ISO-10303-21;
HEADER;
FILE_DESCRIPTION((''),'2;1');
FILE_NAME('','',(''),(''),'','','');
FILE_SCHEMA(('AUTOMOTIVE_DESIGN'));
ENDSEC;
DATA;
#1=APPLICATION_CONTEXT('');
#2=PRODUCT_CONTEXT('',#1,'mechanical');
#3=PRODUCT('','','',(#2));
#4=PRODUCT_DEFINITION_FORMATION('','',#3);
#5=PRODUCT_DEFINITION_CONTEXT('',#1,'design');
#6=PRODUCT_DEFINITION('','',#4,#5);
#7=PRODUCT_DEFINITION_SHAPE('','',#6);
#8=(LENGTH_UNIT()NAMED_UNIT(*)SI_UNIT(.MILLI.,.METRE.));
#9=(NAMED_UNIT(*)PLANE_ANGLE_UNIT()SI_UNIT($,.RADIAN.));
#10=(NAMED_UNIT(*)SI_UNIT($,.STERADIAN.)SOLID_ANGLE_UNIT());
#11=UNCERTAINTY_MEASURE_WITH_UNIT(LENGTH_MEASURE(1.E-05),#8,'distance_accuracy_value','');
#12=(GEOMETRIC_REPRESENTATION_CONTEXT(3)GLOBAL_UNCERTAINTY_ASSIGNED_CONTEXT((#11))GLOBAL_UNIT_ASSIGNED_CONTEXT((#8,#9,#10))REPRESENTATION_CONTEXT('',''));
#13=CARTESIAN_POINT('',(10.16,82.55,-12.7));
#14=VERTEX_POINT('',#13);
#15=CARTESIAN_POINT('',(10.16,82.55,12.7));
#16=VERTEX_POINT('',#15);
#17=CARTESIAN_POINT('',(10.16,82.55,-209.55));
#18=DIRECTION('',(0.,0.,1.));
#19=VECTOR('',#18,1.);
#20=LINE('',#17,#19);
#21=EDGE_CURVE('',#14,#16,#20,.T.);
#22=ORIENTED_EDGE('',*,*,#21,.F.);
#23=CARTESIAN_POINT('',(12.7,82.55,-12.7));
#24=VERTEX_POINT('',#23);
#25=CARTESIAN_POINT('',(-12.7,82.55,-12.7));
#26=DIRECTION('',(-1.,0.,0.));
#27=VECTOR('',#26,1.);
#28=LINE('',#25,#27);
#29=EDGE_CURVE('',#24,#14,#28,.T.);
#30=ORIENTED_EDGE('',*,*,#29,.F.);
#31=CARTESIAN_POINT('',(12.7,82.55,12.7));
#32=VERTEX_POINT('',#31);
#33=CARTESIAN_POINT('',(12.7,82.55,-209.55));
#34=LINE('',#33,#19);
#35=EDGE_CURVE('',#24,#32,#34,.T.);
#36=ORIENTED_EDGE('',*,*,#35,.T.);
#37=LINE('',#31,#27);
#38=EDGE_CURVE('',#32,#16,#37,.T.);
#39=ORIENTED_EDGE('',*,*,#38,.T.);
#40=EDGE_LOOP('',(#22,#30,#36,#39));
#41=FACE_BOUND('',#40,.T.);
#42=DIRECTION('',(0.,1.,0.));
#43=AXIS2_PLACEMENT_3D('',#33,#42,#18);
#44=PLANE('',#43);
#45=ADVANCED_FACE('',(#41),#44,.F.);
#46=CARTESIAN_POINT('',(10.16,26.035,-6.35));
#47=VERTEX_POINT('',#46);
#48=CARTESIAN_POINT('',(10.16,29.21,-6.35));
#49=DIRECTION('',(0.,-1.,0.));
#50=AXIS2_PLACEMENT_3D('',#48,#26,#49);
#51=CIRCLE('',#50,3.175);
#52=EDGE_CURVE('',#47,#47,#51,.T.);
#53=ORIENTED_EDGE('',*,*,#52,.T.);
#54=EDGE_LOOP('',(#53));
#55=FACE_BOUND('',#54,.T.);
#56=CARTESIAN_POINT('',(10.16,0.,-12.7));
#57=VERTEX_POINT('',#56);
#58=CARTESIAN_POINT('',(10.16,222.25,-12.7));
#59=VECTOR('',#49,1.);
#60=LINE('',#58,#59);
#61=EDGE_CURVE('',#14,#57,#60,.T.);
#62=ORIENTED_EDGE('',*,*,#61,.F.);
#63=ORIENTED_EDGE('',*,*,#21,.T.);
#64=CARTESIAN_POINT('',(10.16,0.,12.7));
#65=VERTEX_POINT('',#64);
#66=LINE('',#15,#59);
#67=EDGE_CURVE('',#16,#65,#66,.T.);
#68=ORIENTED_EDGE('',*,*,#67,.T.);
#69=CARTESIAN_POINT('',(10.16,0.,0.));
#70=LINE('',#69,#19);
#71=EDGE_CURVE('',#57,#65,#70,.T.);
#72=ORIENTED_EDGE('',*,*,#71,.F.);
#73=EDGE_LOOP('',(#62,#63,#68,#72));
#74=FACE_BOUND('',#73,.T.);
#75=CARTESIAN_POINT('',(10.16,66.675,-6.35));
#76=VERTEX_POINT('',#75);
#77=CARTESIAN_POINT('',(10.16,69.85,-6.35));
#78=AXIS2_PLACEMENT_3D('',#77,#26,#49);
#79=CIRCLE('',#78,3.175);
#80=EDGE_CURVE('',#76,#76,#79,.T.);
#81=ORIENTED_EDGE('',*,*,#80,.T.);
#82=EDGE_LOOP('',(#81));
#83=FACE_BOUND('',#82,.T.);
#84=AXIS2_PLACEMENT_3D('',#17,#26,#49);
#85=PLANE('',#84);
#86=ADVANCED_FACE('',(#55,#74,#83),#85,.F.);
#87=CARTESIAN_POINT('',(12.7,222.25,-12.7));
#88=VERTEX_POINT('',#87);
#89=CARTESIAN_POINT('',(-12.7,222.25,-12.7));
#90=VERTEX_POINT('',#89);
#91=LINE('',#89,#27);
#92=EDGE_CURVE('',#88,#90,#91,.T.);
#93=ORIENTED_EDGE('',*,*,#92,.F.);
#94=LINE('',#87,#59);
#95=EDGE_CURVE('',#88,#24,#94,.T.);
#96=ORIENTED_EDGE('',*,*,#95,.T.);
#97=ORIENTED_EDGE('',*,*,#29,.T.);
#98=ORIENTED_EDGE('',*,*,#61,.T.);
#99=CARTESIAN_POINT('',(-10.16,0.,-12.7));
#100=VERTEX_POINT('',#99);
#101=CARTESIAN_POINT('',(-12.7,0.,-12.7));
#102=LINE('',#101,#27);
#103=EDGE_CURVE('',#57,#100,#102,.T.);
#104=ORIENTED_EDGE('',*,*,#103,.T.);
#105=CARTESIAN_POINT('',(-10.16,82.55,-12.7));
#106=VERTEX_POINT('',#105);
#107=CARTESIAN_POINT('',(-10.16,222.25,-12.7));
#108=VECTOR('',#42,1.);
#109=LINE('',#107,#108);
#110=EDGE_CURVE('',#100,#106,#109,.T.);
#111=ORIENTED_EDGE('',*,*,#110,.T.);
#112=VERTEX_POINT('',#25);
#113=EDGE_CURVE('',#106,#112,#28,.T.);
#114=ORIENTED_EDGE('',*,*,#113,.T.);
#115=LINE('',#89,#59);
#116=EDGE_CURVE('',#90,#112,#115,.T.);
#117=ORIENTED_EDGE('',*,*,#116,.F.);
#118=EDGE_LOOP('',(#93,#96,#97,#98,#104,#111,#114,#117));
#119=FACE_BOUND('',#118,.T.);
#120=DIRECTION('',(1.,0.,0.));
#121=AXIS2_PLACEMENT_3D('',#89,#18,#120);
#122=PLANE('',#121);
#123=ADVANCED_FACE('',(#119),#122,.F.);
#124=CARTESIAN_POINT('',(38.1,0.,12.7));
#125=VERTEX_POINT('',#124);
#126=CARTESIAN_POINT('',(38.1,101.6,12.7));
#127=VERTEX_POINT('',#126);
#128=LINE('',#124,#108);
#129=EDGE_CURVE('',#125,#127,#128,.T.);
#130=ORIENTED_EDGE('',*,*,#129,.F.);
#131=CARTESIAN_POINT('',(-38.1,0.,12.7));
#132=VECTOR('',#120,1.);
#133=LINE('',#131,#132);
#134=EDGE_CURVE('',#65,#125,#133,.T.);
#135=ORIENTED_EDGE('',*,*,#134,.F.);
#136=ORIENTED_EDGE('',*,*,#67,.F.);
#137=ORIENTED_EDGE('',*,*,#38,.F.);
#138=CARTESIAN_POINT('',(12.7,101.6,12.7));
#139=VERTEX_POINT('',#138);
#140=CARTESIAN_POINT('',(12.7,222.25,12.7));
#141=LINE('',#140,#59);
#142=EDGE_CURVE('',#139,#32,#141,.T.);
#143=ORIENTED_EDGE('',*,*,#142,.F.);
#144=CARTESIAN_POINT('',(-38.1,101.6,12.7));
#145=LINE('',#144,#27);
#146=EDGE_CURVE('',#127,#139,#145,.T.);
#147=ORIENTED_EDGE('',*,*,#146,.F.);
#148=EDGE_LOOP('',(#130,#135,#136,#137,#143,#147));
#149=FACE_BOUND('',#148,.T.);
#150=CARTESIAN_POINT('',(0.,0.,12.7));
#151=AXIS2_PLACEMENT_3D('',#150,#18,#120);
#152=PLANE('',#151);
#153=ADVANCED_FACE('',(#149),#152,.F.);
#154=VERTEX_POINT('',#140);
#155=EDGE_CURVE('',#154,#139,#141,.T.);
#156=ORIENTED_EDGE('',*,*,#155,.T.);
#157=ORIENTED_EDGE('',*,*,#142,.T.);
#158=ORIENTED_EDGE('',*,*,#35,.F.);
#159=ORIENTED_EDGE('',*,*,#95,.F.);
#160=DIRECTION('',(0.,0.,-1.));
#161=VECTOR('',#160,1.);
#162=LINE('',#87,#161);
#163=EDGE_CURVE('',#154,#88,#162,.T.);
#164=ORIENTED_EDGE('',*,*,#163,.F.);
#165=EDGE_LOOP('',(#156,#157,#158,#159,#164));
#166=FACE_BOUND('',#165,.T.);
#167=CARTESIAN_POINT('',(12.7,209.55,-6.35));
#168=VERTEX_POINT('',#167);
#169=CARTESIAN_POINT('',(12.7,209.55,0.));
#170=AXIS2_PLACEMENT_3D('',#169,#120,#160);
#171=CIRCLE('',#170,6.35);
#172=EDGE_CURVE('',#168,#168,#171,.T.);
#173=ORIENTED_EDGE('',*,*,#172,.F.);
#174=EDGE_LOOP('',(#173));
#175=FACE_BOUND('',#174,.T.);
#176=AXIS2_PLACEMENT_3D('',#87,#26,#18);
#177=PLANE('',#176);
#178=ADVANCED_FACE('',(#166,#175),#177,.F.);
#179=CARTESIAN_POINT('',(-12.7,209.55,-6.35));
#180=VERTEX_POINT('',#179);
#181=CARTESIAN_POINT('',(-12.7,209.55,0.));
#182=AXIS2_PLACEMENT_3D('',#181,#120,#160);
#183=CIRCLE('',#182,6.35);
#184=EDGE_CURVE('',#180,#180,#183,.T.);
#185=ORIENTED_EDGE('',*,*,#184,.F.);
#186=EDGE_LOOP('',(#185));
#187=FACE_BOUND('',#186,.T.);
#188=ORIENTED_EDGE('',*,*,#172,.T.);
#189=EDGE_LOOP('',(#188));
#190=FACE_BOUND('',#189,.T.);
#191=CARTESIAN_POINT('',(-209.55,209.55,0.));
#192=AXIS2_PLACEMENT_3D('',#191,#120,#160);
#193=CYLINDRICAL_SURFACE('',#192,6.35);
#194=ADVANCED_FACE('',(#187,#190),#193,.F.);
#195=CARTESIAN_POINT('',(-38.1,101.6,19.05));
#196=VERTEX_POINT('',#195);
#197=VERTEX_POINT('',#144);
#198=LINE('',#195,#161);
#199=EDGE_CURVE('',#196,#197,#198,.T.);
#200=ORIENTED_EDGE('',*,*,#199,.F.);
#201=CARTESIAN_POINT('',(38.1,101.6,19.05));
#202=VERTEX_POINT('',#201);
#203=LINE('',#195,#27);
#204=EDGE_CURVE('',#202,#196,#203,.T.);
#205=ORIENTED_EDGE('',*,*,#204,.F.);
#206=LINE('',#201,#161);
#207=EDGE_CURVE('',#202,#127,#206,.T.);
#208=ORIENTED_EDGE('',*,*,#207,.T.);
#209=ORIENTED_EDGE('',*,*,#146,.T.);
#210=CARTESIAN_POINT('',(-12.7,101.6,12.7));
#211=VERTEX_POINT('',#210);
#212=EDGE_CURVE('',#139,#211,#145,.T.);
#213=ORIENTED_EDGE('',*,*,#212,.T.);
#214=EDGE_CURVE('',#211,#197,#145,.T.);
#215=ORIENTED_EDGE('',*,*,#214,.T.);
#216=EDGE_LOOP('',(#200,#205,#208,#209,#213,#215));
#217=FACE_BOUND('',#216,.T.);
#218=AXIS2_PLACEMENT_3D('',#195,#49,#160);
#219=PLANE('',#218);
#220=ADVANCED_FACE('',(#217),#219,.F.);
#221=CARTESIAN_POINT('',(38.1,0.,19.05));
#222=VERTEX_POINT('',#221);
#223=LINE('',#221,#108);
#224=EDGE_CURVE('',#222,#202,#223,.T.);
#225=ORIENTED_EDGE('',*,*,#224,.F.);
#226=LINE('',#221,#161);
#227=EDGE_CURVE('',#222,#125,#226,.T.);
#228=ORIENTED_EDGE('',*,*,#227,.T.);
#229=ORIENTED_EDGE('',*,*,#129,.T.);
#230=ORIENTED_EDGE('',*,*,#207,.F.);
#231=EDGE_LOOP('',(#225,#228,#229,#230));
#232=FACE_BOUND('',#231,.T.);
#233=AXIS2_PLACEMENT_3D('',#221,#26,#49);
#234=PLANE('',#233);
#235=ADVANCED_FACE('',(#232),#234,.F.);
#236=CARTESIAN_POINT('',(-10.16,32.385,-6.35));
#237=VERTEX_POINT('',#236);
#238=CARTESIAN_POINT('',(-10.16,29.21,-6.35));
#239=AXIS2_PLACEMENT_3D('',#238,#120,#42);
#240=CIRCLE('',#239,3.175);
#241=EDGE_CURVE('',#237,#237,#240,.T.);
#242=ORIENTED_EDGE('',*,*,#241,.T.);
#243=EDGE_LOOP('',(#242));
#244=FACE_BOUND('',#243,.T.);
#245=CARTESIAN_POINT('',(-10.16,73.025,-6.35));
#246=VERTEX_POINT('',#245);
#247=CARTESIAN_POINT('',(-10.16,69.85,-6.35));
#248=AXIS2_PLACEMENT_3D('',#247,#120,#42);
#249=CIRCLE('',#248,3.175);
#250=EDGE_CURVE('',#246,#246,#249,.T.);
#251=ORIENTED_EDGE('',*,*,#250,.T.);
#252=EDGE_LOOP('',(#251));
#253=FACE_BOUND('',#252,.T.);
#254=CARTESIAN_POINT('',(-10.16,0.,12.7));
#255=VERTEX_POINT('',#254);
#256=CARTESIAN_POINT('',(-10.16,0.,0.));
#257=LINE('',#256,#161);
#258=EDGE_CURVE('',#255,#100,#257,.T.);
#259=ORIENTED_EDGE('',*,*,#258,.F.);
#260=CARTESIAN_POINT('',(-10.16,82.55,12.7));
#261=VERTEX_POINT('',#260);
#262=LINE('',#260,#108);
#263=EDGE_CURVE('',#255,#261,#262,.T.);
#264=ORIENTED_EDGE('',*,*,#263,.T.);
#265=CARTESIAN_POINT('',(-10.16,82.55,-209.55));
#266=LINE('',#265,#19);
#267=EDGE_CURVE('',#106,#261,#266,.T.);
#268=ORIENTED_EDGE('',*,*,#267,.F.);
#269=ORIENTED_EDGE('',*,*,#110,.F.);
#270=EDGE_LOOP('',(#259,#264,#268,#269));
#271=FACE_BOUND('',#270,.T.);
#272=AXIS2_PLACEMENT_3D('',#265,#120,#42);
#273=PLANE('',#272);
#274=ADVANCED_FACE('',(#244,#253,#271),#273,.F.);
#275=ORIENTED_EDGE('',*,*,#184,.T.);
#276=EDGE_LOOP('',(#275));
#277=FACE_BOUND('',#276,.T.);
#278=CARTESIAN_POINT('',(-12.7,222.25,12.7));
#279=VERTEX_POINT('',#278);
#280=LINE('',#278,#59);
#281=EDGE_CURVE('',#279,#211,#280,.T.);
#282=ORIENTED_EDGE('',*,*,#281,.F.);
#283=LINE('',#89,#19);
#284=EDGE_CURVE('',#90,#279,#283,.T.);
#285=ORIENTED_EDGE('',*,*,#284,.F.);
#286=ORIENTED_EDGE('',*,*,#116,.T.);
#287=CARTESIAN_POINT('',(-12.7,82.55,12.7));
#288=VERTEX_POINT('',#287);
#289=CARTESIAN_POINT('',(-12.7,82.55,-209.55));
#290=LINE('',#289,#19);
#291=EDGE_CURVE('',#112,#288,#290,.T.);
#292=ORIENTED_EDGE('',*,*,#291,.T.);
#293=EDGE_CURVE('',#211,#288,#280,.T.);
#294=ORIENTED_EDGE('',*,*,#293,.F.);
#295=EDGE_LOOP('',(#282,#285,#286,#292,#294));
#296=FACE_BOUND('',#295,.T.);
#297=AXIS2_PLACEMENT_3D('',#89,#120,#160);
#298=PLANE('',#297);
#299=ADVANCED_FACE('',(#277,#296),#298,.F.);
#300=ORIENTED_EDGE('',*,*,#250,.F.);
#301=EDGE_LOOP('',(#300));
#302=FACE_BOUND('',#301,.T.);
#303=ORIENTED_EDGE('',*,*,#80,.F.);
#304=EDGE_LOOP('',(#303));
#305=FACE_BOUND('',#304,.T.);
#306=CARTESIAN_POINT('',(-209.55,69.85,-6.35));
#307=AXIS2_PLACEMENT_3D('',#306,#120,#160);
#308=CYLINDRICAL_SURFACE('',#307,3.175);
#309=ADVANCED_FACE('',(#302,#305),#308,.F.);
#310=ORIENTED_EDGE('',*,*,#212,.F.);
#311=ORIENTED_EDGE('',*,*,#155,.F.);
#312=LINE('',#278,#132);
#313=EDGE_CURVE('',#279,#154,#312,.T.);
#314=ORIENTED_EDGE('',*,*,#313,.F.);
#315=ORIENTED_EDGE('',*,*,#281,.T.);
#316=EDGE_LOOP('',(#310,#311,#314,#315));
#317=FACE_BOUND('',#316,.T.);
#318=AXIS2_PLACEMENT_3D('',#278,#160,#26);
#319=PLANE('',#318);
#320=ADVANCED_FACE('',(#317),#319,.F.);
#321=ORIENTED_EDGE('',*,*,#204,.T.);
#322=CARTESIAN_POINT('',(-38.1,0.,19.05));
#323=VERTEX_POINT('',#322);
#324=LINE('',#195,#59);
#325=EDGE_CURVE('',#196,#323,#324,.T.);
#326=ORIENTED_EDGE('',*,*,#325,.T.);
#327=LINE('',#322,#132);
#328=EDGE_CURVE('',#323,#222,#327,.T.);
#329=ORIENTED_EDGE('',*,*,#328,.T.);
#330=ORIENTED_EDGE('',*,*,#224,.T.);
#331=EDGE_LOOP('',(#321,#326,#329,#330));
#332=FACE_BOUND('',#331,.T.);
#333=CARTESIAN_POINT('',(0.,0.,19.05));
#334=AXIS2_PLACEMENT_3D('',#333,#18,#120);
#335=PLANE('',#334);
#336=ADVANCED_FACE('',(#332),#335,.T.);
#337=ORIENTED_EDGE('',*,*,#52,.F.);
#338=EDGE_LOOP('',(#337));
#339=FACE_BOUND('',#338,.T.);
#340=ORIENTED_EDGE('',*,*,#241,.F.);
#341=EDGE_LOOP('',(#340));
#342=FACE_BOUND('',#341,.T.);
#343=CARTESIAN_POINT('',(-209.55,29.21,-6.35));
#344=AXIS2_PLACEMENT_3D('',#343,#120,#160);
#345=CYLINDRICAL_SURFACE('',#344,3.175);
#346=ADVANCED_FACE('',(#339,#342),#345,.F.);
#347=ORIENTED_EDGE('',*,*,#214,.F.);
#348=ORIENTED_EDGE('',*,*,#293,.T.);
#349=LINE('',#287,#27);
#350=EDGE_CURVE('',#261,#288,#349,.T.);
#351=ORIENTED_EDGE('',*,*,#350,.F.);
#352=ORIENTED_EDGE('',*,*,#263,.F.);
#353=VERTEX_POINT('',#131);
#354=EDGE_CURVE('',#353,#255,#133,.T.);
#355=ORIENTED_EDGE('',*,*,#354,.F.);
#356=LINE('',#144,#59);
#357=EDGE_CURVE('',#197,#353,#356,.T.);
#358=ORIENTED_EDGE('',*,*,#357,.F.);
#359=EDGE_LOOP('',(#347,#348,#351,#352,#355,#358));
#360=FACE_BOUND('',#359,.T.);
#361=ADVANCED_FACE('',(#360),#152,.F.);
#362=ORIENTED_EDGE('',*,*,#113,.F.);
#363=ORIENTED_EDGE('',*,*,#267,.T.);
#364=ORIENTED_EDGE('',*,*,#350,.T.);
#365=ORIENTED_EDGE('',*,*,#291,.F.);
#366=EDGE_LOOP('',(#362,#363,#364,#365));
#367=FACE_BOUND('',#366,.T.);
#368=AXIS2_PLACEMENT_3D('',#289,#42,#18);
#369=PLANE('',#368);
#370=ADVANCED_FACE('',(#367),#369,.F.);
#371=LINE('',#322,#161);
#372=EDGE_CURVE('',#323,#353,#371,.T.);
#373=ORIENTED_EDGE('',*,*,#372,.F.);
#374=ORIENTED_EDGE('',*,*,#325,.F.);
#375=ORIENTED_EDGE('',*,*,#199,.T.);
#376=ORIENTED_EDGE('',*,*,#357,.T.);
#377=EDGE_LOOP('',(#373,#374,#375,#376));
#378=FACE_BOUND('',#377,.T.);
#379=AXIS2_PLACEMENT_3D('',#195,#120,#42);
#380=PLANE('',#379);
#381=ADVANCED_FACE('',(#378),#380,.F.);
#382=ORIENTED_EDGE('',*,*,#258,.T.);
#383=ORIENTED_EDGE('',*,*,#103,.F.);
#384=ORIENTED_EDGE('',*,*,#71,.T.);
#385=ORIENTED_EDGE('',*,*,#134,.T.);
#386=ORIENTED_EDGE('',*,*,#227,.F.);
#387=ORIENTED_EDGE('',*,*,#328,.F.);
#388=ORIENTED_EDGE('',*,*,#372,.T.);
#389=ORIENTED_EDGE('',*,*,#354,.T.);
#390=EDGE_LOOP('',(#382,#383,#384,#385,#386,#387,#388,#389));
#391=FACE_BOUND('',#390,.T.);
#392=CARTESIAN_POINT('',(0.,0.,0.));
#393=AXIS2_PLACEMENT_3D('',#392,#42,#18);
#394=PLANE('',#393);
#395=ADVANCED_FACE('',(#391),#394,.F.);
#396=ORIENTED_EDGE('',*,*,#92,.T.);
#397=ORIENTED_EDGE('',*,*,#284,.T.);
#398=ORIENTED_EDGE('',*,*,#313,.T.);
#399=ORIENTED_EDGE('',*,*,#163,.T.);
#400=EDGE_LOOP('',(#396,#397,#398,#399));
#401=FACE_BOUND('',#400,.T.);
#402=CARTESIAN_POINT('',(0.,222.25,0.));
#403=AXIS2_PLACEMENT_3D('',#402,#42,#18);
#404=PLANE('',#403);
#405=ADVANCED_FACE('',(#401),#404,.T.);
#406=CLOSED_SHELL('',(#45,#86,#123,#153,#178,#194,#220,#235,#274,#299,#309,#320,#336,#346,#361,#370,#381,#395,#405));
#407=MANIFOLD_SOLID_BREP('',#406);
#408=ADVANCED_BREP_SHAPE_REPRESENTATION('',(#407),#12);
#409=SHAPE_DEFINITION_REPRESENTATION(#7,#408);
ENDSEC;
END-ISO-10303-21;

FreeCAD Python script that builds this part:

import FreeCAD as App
import Part
import Sketcher
Q = App.Units.Quantity

doc = App.newDocument("Part")
body = doc.addObject("PartDesign::Body", "Body")

sketch1 = body.newObject("Sketcher::SketchObject", "Sketch")
sketch1.AttachmentSupport = (doc.getObject("XZ_Plane"), [""])
sketch1.MapMode = "FlatFace"
sketch1.addGeometry([
    Part.LineSegment(App.Vector(-12.7, -12.7, 0), App.Vector(-12.7, 12.7, 0)),
    Part.LineSegment(App.Vector(-12.7, 12.7, 0), App.Vector(12.7, 12.7, 0)),
    Part.LineSegment(App.Vector(12.7, 12.7, 0), App.Vector(12.7, -12.7, 0)),
    Part.LineSegment(App.Vector(12.7, -12.7, 0), App.Vector(-12.7, -12.7, 0)),
], False)
sketch1.addConstraint([
    Sketcher.Constraint("Coincident", 0, 2, 1, 1),
    Sketcher.Constraint("Coincident", 1, 2, 2, 1),
    Sketcher.Constraint("Coincident", 2, 2, 3, 1),
    Sketcher.Constraint("Coincident", 3, 2, 0, 1),
    Sketcher.Constraint("Vertical", 0),
    Sketcher.Constraint("Horizontal", 1),
    Sketcher.Constraint("Vertical", 2),
    Sketcher.Constraint("Horizontal", 3),
    Sketcher.Constraint("Symmetric", 0, 2, 2, 2, -1, 1),
    Sketcher.Constraint("Equal", 3, 0),
    Sketcher.Constraint("DistanceX", 1, 1, 1, 2, Q("1 in")),
])
pad1 = body.newObject("PartDesign::Pad", "Pad")
pad1.Profile = sketch1
pad1.Length = Q("8.75 in")
pad1.Reversed = True

sketch2 = body.newObject("Sketcher::SketchObject", "Sketch001")
sketch2.AttachmentSupport = (doc.getObject("XY_Plane"), [""])
sketch2.MapMode = "FlatFace"
sketch2.AttachmentOffset = App.Placement(App.Vector(0, 0, 0.5 * 25.4), App.Rotation())
sketch2.addGeometry([
    Part.LineSegment(App.Vector(-12.7, 82.55, 0), App.Vector(-12.7, 0, 0)),
    Part.LineSegment(App.Vector(-12.7, 0, 0), App.Vector(-10.16, 0, 0)),
    Part.LineSegment(App.Vector(-10.16, 0, 0), App.Vector(-10.16, 82.55, 0)),
    Part.LineSegment(App.Vector(-10.16, 82.55, 0), App.Vector(-12.7, 82.55, 0)),
    Part.LineSegment(App.Vector(10.16, 82.55, 0), App.Vector(10.16, 0, 0)),
    Part.LineSegment(App.Vector(10.16, 0, 0), App.Vector(12.7, 0, 0)),
    Part.LineSegment(App.Vector(12.7, 0, 0), App.Vector(12.7, 82.55, 0)),
    Part.LineSegment(App.Vector(12.7, 82.55, 0), App.Vector(10.16, 82.55, 0)),
], False)
sketch2.addConstraint([
    Sketcher.Constraint("Coincident", 0, 2, 1, 1),
    Sketcher.Constraint("Coincident", 1, 2, 2, 1),
    Sketcher.Constraint("Coincident", 2, 2, 3, 1),
    Sketcher.Constraint("Coincident", 3, 2, 0, 1),
    Sketcher.Constraint("Coincident", 4, 2, 5, 1),
    Sketcher.Constraint("Coincident", 5, 2, 6, 1),
    Sketcher.Constraint("Coincident", 6, 2, 7, 1),
    Sketcher.Constraint("Coincident", 7, 2, 4, 1),
    Sketcher.Constraint("Vertical", 0),
    Sketcher.Constraint("Horizontal", 1),
    Sketcher.Constraint("Vertical", 2),
    Sketcher.Constraint("Horizontal", 3),
    Sketcher.Constraint("Vertical", 4),
    Sketcher.Constraint("Horizontal", 5),
    Sketcher.Constraint("Vertical", 6),
    Sketcher.Constraint("Horizontal", 7),
    Sketcher.Constraint("Symmetric", 1, 2, 4, 2, -1, 1),
    Sketcher.Constraint("Symmetric", 0, 2, 5, 2, -2),
    Sketcher.Constraint("Horizontal", 3, 2, 6, 2),
    Sketcher.Constraint("DistanceX", 1, 1, 1, 2, Q("0.1 in")),
    Sketcher.Constraint("DistanceX", 0, 2, 5, 2, Q("1 in")),
    Sketcher.Constraint("DistanceY", 0, 2, 0, 1, Q("3.25 in")),
])
pocket1 = body.newObject("PartDesign::Pocket", "Pocket")
pocket1.Profile = sketch2
pocket1.Length = Q("8.75 in")

sketch3 = body.newObject("Sketcher::SketchObject", "Sketch002")
sketch3.AttachmentSupport = (doc.getObject("YZ_Plane"), [""])
sketch3.MapMode = "FlatFace"
sketch3.AttachmentOffset = App.Placement(App.Vector(0, 0, 0.5 * 25.4), App.Rotation())
sketch3.addGeometry([
    Part.Circle(App.Vector(209.55, 0, 0), App.Vector(0, 0, 1), 6.35),
    Part.Circle(App.Vector(69.85, -6.35, 0), App.Vector(0, 0, 1), 3.175),
    Part.Circle(App.Vector(29.21, -6.35, 0), App.Vector(0, 0, 1), 3.175),
], False)
sketch3.addConstraint([
    Sketcher.Constraint("Equal", 1, 2),
    Sketcher.Constraint("PointOnObject", 0, 3, -1),
    Sketcher.Constraint("Horizontal", 1, 3, 2, 3),
    Sketcher.Constraint("Diameter", 0, Q("0.5 in")),
    Sketcher.Constraint("Diameter", 1, Q("0.25 in")),
    Sketcher.Constraint("DistanceX", 1, 3, 0, 3, Q("5.5 in")),
    Sketcher.Constraint("DistanceX", 2, 3, 1, 3, Q("1.6 in")),
    Sketcher.Constraint("DistanceX", -1, 1, 0, 3, Q("8.25 in")),
    Sketcher.Constraint("DistanceY", 1, 3, -1, 1, Q("0.25 in")),
])
pocket2 = body.newObject("PartDesign::Pocket", "Pocket001")
pocket2.Profile = sketch3
pocket2.Length = Q("8.75 in")

sketch4 = body.newObject("Sketcher::SketchObject", "Sketch003")
sketch4.AttachmentSupport = (doc.getObject("XY_Plane"), [""])
sketch4.MapMode = "FlatFace"
sketch4.AttachmentOffset = App.Placement(App.Vector(0, 0, 0.5 * 25.4), App.Rotation())
sketch4.addGeometry([
    Part.LineSegment(App.Vector(-38.1, 101.6, 0), App.Vector(-38.1, 0, 0)),
    Part.LineSegment(App.Vector(-38.1, 0, 0), App.Vector(38.1, 0, 0)),
    Part.LineSegment(App.Vector(38.1, 0, 0), App.Vector(38.1, 101.6, 0)),
    Part.LineSegment(App.Vector(38.1, 101.6, 0), App.Vector(-38.1, 101.6, 0)),
], False)
sketch4.addConstraint([
    Sketcher.Constraint("Coincident", 0, 2, 1, 1),
    Sketcher.Constraint("Coincident", 1, 2, 2, 1),
    Sketcher.Constraint("Coincident", 2, 2, 3, 1),
    Sketcher.Constraint("Coincident", 3, 2, 0, 1),
    Sketcher.Constraint("Vertical", 0),
    Sketcher.Constraint("Horizontal", 1),
    Sketcher.Constraint("Vertical", 2),
    Sketcher.Constraint("Horizontal", 3),
    Sketcher.Constraint("Symmetric", 0, 2, 1, 2, -1, 1),
    Sketcher.Constraint("DistanceX", 1, 1, 1, 2, Q("3 in")),
    Sketcher.Constraint("DistanceY", 0, 2, 0, 1, Q("4 in")),
])
pad2 = body.newObject("PartDesign::Pad", "Pad001")
pad2.Profile = sketch4
pad2.Length = Q("0.25 in")

doc.recompute()
